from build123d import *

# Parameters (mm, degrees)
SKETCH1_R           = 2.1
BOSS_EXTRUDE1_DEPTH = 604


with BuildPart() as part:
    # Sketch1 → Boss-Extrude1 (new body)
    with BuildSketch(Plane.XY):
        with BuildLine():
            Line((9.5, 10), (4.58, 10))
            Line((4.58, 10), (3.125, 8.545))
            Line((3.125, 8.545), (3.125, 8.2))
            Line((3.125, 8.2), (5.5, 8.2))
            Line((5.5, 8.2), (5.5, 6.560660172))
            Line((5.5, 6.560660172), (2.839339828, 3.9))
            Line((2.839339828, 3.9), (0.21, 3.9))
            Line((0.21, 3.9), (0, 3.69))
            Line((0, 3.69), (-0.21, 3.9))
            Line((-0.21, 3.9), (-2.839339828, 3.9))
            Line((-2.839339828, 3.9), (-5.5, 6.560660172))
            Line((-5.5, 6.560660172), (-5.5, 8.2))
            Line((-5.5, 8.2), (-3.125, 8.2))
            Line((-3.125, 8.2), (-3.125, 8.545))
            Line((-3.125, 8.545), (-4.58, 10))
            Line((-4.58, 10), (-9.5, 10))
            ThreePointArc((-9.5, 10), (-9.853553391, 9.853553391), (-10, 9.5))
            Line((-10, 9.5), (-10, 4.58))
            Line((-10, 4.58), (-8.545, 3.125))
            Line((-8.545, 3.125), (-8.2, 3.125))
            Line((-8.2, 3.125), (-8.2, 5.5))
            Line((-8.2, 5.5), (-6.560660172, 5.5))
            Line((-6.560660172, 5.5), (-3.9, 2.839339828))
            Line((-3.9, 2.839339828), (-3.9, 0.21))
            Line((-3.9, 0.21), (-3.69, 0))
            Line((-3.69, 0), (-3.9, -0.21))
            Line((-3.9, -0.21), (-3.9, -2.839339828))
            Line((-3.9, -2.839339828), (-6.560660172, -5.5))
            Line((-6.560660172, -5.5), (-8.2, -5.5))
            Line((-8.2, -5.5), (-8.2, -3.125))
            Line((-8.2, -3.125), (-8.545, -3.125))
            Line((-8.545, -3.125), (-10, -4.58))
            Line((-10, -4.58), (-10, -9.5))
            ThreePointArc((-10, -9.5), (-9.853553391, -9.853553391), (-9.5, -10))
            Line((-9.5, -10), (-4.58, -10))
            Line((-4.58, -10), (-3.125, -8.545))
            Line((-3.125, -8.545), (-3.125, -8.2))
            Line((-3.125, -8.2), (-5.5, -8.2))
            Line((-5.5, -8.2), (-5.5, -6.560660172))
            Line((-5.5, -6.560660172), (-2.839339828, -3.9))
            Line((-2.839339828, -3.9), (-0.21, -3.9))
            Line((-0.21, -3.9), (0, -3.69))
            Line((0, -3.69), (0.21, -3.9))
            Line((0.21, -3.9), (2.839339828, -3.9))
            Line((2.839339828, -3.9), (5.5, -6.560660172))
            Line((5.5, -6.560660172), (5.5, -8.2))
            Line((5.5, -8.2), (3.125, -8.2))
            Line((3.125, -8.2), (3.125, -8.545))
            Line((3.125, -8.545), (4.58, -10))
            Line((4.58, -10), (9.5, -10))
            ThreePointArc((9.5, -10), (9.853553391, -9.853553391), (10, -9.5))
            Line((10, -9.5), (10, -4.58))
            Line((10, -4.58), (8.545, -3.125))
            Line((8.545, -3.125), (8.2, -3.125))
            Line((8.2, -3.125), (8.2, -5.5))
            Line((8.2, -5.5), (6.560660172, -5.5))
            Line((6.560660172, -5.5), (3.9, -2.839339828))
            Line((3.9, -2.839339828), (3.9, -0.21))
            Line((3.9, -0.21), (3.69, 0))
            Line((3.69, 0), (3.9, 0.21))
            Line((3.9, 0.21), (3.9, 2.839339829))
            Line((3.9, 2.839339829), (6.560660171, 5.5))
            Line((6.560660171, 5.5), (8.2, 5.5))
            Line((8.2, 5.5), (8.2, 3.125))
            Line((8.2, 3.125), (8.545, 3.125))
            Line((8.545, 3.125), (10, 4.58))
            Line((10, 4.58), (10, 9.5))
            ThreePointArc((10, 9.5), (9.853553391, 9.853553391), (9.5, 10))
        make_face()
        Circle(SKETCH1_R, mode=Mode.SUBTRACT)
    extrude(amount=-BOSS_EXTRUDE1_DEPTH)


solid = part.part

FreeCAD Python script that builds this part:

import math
import FreeCAD as App
import Part
import Sketcher

V = App.Vector

doc = App.newDocument("Part")
params = doc.addObject("Spreadsheet::Sheet", "Params")
for row, (alias, value) in enumerate([
    ("sketch1_diameter", "4.2 mm"),
    ("sketch1_radius", "0.5 mm"),
    ("sketch1_width", "4.92 mm"),
    ("pad1_length", "604 mm"),
], start=1):
    params.set(f"A{row}", alias)
    params.set(f"B{row}", "=" + value)
    params.setAlias(f"B{row}", alias)

body = doc.addObject("PartDesign::Body", "Body")

# Sketch on XY plane
sketch1 = body.newObject("Sketcher::SketchObject", "Sketch")
sketch1.AttachmentSupport = (doc.getObject("XY_Plane"), [""])
sketch1.MapMode = "FlatFace"
sketch1.addGeometry(Part.LineSegment(V(9.5, 10, 0), V(4.58, 10, 0)), False)
sketch1.addGeometry(Part.LineSegment(V(4.58, 10, 0), V(3.12, 8.54, 0)), False)
sketch1.addGeometry(Part.LineSegment(V(3.12, 8.54, 0), V(3.12, 8.2, 0)), False)
sketch1.addGeometry(Part.LineSegment(V(3.12, 8.2, 0), V(5.5, 8.2, 0)), False)
sketch1.addGeometry(Part.LineSegment(V(5.5, 8.2, 0), V(5.5, 6.56, 0)), False)
sketch1.addGeometry(Part.LineSegment(V(5.5, 6.56, 0), V(2.84, 3.9, 0)), False)
sketch1.addGeometry(Part.LineSegment(V(2.84, 3.9, 0), V(0.21, 3.9, 0)), False)
sketch1.addGeometry(Part.LineSegment(V(0.21, 3.9, 0), V(0, 3.69, 0)), False)
sketch1.addGeometry(Part.LineSegment(V(0, 3.69, 0), V(-0.21, 3.9, 0)), False)
sketch1.addGeometry(Part.LineSegment(V(-0.21, 3.9, 0), V(-2.84, 3.9, 0)), False)
sketch1.addGeometry(Part.LineSegment(V(-2.84, 3.9, 0), V(-5.5, 6.56, 0)), False)
sketch1.addGeometry(Part.LineSegment(V(-5.5, 6.56, 0), V(-5.5, 8.2, 0)), False)
sketch1.addGeometry(Part.LineSegment(V(-5.5, 8.2, 0), V(-3.12, 8.2, 0)), False)
sketch1.addGeometry(Part.LineSegment(V(-3.12, 8.2, 0), V(-3.12, 8.54, 0)), False)
sketch1.addGeometry(Part.LineSegment(V(-3.12, 8.54, 0), V(-4.58, 10, 0)), False)
sketch1.addGeometry(Part.LineSegment(V(-4.58, 10, 0), V(-9.5, 10, 0)), False)
sketch1.addGeometry(Part.ArcOfCircle(Part.Circle(V(-9.5, 9.5, 0), V(0, 0, 1), 0.5), math.radians(90), math.radians(180)), False)
sketch1.addGeometry(Part.LineSegment(V(-10, 9.5, 0), V(-10, 4.58, 0)), False)
sketch1.addGeometry(Part.LineSegment(V(-10, 4.58, 0), V(-8.54, 3.12, 0)), False)
sketch1.addGeometry(Part.LineSegment(V(-8.54, 3.12, 0), V(-8.2, 3.12, 0)), False)
sketch1.addGeometry(Part.LineSegment(V(-8.2, 3.12, 0), V(-8.2, 5.5, 0)), False)
sketch1.addGeometry(Part.LineSegment(V(-8.2, 5.5, 0), V(-6.56, 5.5, 0)), False)
sketch1.addGeometry(Part.LineSegment(V(-6.56, 5.5, 0), V(-3.9, 2.84, 0)), False)
sketch1.addGeometry(Part.LineSegment(V(-3.9, 2.84, 0), V(-3.9, 0.21, 0)), False)
sketch1.addGeometry(Part.LineSegment(V(-3.9, 0.21, 0), V(-3.69, 0, 0)), False)
sketch1.addGeometry(Part.LineSegment(V(-3.69, 0, 0), V(-3.9, -0.21, 0)), False)
sketch1.addGeometry(Part.LineSegment(V(-3.9, -0.21, 0), V(-3.9, -2.84, 0)), False)
sketch1.addGeometry(Part.LineSegment(V(-3.9, -2.84, 0), V(-6.56, -5.5, 0)), False)
sketch1.addGeometry(Part.LineSegment(V(-6.56, -5.5, 0), V(-8.2, -5.5, 0)), False)
sketch1.addGeometry(Part.LineSegment(V(-8.2, -5.5, 0), V(-8.2, -3.12, 0)), False)
sketch1.addGeometry(Part.LineSegment(V(-8.2, -3.12, 0), V(-8.54, -3.12, 0)), False)
sketch1.addGeometry(Part.LineSegment(V(-8.54, -3.12, 0), V(-10, -4.58, 0)), False)
sketch1.addGeometry(Part.LineSegment(V(-10, -4.58, 0), V(-10, -9.5, 0)), False)
sketch1.addGeometry(Part.ArcOfCircle(Part.Circle(V(-9.5, -9.5, 0), V(0, 0, 1), 0.5), math.radians(180), math.radians(270)), False)
sketch1.addGeometry(Part.LineSegment(V(-9.5, -10, 0), V(-4.58, -10, 0)), False)
sketch1.addGeometry(Part.LineSegment(V(-4.58, -10, 0), V(-3.12, -8.54, 0)), False)
sketch1.addGeometry(Part.LineSegment(V(-3.12, -8.54, 0), V(-3.12, -8.2, 0)), False)
sketch1.addGeometry(Part.LineSegment(V(-3.12, -8.2, 0), V(-5.5, -8.2, 0)), False)
sketch1.addGeometry(Part.LineSegment(V(-5.5, -8.2, 0), V(-5.5, -6.56, 0)), False)
sketch1.addGeometry(Part.LineSegment(V(-5.5, -6.56, 0), V(-2.84, -3.9, 0)), False)
sketch1.addGeometry(Part.LineSegment(V(-2.84, -3.9, 0), V(-0.21, -3.9, 0)), False)
sketch1.addGeometry(Part.LineSegment(V(-0.21, -3.9, 0), V(0, -3.69, 0)), False)
sketch1.addGeometry(Part.LineSegment(V(0, -3.69, 0), V(0.21, -3.9, 0)), False)
sketch1.addGeometry(Part.LineSegment(V(0.21, -3.9, 0), V(2.84, -3.9, 0)), False)
sketch1.addGeometry(Part.LineSegment(V(2.84, -3.9, 0), V(5.5, -6.56, 0)), False)
sketch1.addGeometry(Part.LineSegment(V(5.5, -6.56, 0), V(5.5, -8.2, 0)), False)
sketch1.addGeometry(Part.LineSegment(V(5.5, -8.2, 0), V(3.12, -8.2, 0)), False)
sketch1.addGeometry(Part.LineSegment(V(3.12, -8.2, 0), V(3.12, -8.54, 0)), False)
sketch1.addGeometry(Part.LineSegment(V(3.12, -8.54, 0), V(4.58, -10, 0)), False)
sketch1.addGeometry(Part.LineSegment(V(4.58, -10, 0), V(9.5, -10, 0)), False)
sketch1.addGeometry(Part.ArcOfCircle(Part.Circle(V(9.5, -9.5, 0), V(0, 0, 1), 0.5), math.radians(-90), math.radians(0)), False)
sketch1.addGeometry(Part.LineSegment(V(10, -9.5, 0), V(10, -4.58, 0)), False)
sketch1.addGeometry(Part.LineSegment(V(10, -4.58, 0), V(8.54, -3.12, 0)), False)
sketch1.addGeometry(Part.LineSegment(V(8.54, -3.12, 0), V(8.2, -3.12, 0)), False)
sketch1.addGeometry(Part.LineSegment(V(8.2, -3.12, 0), V(8.2, -5.5, 0)), False)
sketch1.addGeometry(Part.LineSegment(V(8.2, -5.5, 0), V(6.56, -5.5, 0)), False)
sketch1.addGeometry(Part.LineSegment(V(6.56, -5.5, 0), V(3.9, -2.84, 0)), False)
sketch1.addGeometry(Part.LineSegment(V(3.9, -2.84, 0), V(3.9, -0.21, 0)), False)
sketch1.addGeometry(Part.LineSegment(V(3.9, -0.21, 0), V(3.69, 0, 0)), False)
sketch1.addGeometry(Part.LineSegment(V(3.69, 0, 0), V(3.9, 0.21, 0)), False)
sketch1.addGeometry(Part.LineSegment(V(3.9, 0.21, 0), V(3.9, 2.84, 0)), False)
sketch1.addGeometry(Part.LineSegment(V(3.9, 2.84, 0), V(6.56, 5.5, 0)), False)
sketch1.addGeometry(Part.LineSegment(V(6.56, 5.5, 0), V(8.2, 5.5, 0)), False)
sketch1.addGeometry(Part.LineSegment(V(8.2, 5.5, 0), V(8.2, 3.12, 0)), False)
sketch1.addGeometry(Part.LineSegment(V(8.2, 3.12, 0), V(8.54, 3.12, 0)), False)
sketch1.addGeometry(Part.LineSegment(V(8.54, 3.12, 0), V(10, 4.58, 0)), False)
sketch1.addGeometry(Part.LineSegment(V(10, 4.58, 0), V(10, 9.5, 0)), False)
sketch1.addGeometry(Part.ArcOfCircle(Part.Circle(V(9.5, 9.5, 0), V(0, 0, 1), 0.5), math.radians(0), math.radians(90)), False)
sketch1.addGeometry(Part.Circle(V(0, 0, 0), V(0, 0, 1), 2.1), False)
sketch1.addConstraint(Sketcher.Constraint("Coincident", 0, 2, 1, 1))
sketch1.addConstraint(Sketcher.Constraint("Coincident", 1, 2, 2, 1))
sketch1.addConstraint(Sketcher.Constraint("Coincident", 2, 2, 3, 1))
sketch1.addConstraint(Sketcher.Constraint("Coincident", 3, 2, 4, 1))
sketch1.addConstraint(Sketcher.Constraint("Coincident", 4, 2, 5, 1))
sketch1.addConstraint(Sketcher.Constraint("Coincident", 5, 2, 6, 1))
sketch1.addConstraint(Sketcher.Constraint("Coincident", 6, 2, 7, 1))
sketch1.addConstraint(Sketcher.Constraint("Coincident", 7, 2, 8, 1))
sketch1.addConstraint(Sketcher.Constraint("Coincident", 8, 2, 9, 1))
sketch1.addConstraint(Sketcher.Constraint("Coincident", 9, 2, 10, 1))
sketch1.addConstraint(Sketcher.Constraint("Coincident", 10, 2, 11, 1))
sketch1.addConstraint(Sketcher.Constraint("Coincident", 11, 2, 12, 1))
sketch1.addConstraint(Sketcher.Constraint("Coincident", 12, 2, 13, 1))
sketch1.addConstraint(Sketcher.Constraint("Coincident", 13, 2, 14, 1))
sketch1.addConstraint(Sketcher.Constraint("Coincident", 14, 2, 15, 1))
sketch1.addConstraint(Sketcher.Constraint("Tangent", 15, 2, 16, 1))
sketch1.addConstraint(Sketcher.Constraint("Tangent", 16, 2, 17, 1))
sketch1.addConstraint(Sketcher.Constraint("Coincident", 17, 2, 18, 1))
sketch1.addConstraint(Sketcher.Constraint("Coincident", 18, 2, 19, 1))
sketch1.addConstraint(Sketcher.Constraint("Coincident", 19, 2, 20, 1))
sketch1.addConstraint(Sketcher.Constraint("Coincident", 20, 2, 21, 1))
sketch1.addConstraint(Sketcher.Constraint("Coincident", 21, 2, 22, 1))
sketch1.addConstraint(Sketcher.Constraint("Coincident", 22, 2, 23, 1))
sketch1.addConstraint(Sketcher.Constraint("Coincident", 23, 2, 24, 1))
sketch1.addConstraint(Sketcher.Constraint("Coincident", 24, 2, 25, 1))
sketch1.addConstraint(Sketcher.Constraint("Coincident", 25, 2, 26, 1))
sketch1.addConstraint(Sketcher.Constraint("Coincident", 26, 2, 27, 1))
sketch1.addConstraint(Sketcher.Constraint("Coincident", 27, 2, 28, 1))
sketch1.addConstraint(Sketcher.Constraint("Coincident", 28, 2, 29, 1))
sketch1.addConstraint(Sketcher.Constraint("Coincident", 29, 2, 30, 1))
sketch1.addConstraint(Sketcher.Constraint("Coincident", 30, 2, 31, 1))
sketch1.addConstraint(Sketcher.Constraint("Coincident", 31, 2, 32, 1))
sketch1.addConstraint(Sketcher.Constraint("Tangent", 32, 2, 33, 1))
sketch1.addConstraint(Sketcher.Constraint("Tangent", 33, 2, 34, 1))
sketch1.addConstraint(Sketcher.Constraint("Coincident", 34, 2, 35, 1))
sketch1.addConstraint(Sketcher.Constraint("Coincident", 35, 2, 36, 1))
sketch1.addConstraint(Sketcher.Constraint("Coincident", 36, 2, 37, 1))
sketch1.addConstraint(Sketcher.Constraint("Coincident", 37, 2, 38, 1))
sketch1.addConstraint(Sketcher.Constraint("Coincident", 38, 2, 39, 1))
sketch1.addConstraint(Sketcher.Constraint("Coincident", 39, 2, 40, 1))
sketch1.addConstraint(Sketcher.Constraint("Coincident", 40, 2, 41, 1))
sketch1.addConstraint(Sketcher.Constraint("Coincident", 41, 2, 42, 1))
sketch1.addConstraint(Sketcher.Constraint("Coincident", 42, 2, 43, 1))
sketch1.addConstraint(Sketcher.Constraint("Coincident", 43, 2, 44, 1))
sketch1.addConstraint(Sketcher.Constraint("Coincident", 44, 2, 45, 1))
sketch1.addConstraint(Sketcher.Constraint("Coincident", 45, 2, 46, 1))
sketch1.addConstraint(Sketcher.Constraint("Coincident", 46, 2, 47, 1))
sketch1.addConstraint(Sketcher.Constraint("Coincident", 47, 2, 48, 1))
sketch1.addConstraint(Sketcher.Constraint("Coincident", 48, 2, 49, 1))
sketch1.addConstraint(Sketcher.Constraint("Tangent", 49, 2, 50, 1))
sketch1.addConstraint(Sketcher.Constraint("Tangent", 50, 2, 51, 1))
sketch1.addConstraint(Sketcher.Constraint("Coincident", 51, 2, 52, 1))
sketch1.addConstraint(Sketcher.Constraint("Coincident", 52, 2, 53, 1))
sketch1.addConstraint(Sketcher.Constraint("Coincident", 53, 2, 54, 1))
sketch1.addConstraint(Sketcher.Constraint("Coincident", 54, 2, 55, 1))
sketch1.addConstraint(Sketcher.Constraint("Coincident", 55, 2, 56, 1))
sketch1.addConstraint(Sketcher.Constraint("Coincident", 56, 2, 57, 1))
sketch1.addConstraint(Sketcher.Constraint("Coincident", 57, 2, 58, 1))
sketch1.addConstraint(Sketcher.Constraint("Coincident", 58, 2, 59, 1))
sketch1.addConstraint(Sketcher.Constraint("Coincident", 59, 2, 60, 1))
sketch1.addConstraint(Sketcher.Constraint("Coincident", 60, 2, 61, 1))
sketch1.addConstraint(Sketcher.Constraint("Coincident", 61, 2, 62, 1))
sketch1.addConstraint(Sketcher.Constraint("Coincident", 62, 2, 63, 1))
sketch1.addConstraint(Sketcher.Constraint("Coincident", 63, 2, 64, 1))
sketch1.addConstraint(Sketcher.Constraint("Coincident", 64, 2, 65, 1))
sketch1.addConstraint(Sketcher.Constraint("Coincident", 65, 2, 66, 1))
sketch1.addConstraint(Sketcher.Constraint("Tangent", 66, 2, 67, 1))
sketch1.addConstraint(Sketcher.Constraint("Tangent", 67, 2, 0, 1))
sketch1.addConstraint(Sketcher.Constraint("Horizontal", 0))
sketch1.addConstraint(Sketcher.Constraint("Vertical", 2))
sketch1.addConstraint(Sketcher.Constraint("Horizontal", 3))
sketch1.addConstraint(Sketcher.Constraint("Vertical", 4))
sketch1.addConstraint(Sketcher.Constraint("Horizontal", 6))
sketch1.addConstraint(Sketcher.Constraint("Horizontal", 9))
sketch1.addConstraint(Sketcher.Constraint("Vertical", 11))
sketch1.addConstraint(Sketcher.Constraint("Horizontal", 12))
sketch1.addConstraint(Sketcher.Constraint("Vertical", 13))
sketch1.addConstraint(Sketcher.Constraint("Horizontal", 15))
sketch1.addConstraint(Sketcher.Constraint("Vertical", 17))
sketch1.addConstraint(Sketcher.Constraint("Horizontal", 19))
sketch1.addConstraint(Sketcher.Constraint("Vertical", 20))
sketch1.addConstraint(Sketcher.Constraint("Horizontal", 21))
sketch1.addConstraint(Sketcher.Constraint("Vertical", 23))
sketch1.addConstraint(Sketcher.Constraint("Vertical", 26))
sketch1.addConstraint(Sketcher.Constraint("Horizontal", 28))
sketch1.addConstraint(Sketcher.Constraint("Vertical", 29))
sketch1.addConstraint(Sketcher.Constraint("Horizontal", 30))
sketch1.addConstraint(Sketcher.Constraint("Vertical", 32))
sketch1.addConstraint(Sketcher.Constraint("Horizontal", 34))
sketch1.addConstraint(Sketcher.Constraint("Vertical", 36))
sketch1.addConstraint(Sketcher.Constraint("Horizontal", 37))
sketch1.addConstraint(Sketcher.Constraint("Vertical", 38))
sketch1.addConstraint(Sketcher.Constraint("Horizontal", 40))
sketch1.addConstraint(Sketcher.Constraint("Horizontal", 43))
sketch1.addConstraint(Sketcher.Constraint("Vertical", 45))
sketch1.addConstraint(Sketcher.Constraint("Horizontal", 46))
sketch1.addConstraint(Sketcher.Constraint("Vertical", 47))
sketch1.addConstraint(Sketcher.Constraint("Horizontal", 49))
sketch1.addConstraint(Sketcher.Constraint("Vertical", 51))
sketch1.addConstraint(Sketcher.Constraint("Horizontal", 53))
sketch1.addConstraint(Sketcher.Constraint("Vertical", 54))
sketch1.addConstraint(Sketcher.Constraint("Horizontal", 55))
sketch1.addConstraint(Sketcher.Constraint("Vertical", 57))
sketch1.addConstraint(Sketcher.Constraint("Vertical", 60))
sketch1.addConstraint(Sketcher.Constraint("Horizontal", 62))
sketch1.addConstraint(Sketcher.Constraint("Vertical", 63))
sketch1.addConstraint(Sketcher.Constraint("Horizontal", 64))
sketch1.addConstraint(Sketcher.Constraint("Vertical", 66))
sketch1.addConstraint(Sketcher.Constraint("Coincident", 68, 3, -1, 1))
sketch1.addConstraint(Sketcher.Constraint("Equal", 16, 33))
sketch1.addConstraint(Sketcher.Constraint("Equal", 33, 50))
sketch1.addConstraint(Sketcher.Constraint("Equal", 50, 67))
sketch1.addConstraint(Sketcher.Constraint("Symmetric", 16, 3, 50, 3, -1, 1))
sketch1.addConstraint(Sketcher.Constraint("Symmetric", 33, 3, 67, 3, -1, 1))
sketch1.addConstraint(Sketcher.Constraint("Symmetric", 1, 2, 35, 2, -1, 1))
sketch1.addConstraint(Sketcher.Constraint("Symmetric", 3, 2, 37, 2, -1, 1))
sketch1.addConstraint(Sketcher.Constraint("Symmetric", 5, 2, 39, 2, -1, 1))
sketch1.addConstraint(Sketcher.Constraint("Symmetric", 7, 2, 41, 2, -1, 1))
sketch1.addConstraint(Sketcher.Constraint("Symmetric", 8, 2, 42, 2, -1, 1))
sketch1.addConstraint(Sketcher.Constraint("Symmetric", 10, 2, 44, 2, -1, 1))
sketch1.addConstraint(Sketcher.Constraint("Symmetric", 12, 2, 46, 2, -1, 1))
sketch1.addConstraint(Sketcher.Constraint("Symmetric", 18, 2, 52, 2, -1, 1))
sketch1.addConstraint(Sketcher.Constraint("Symmetric", 20, 2, 54, 2, -1, 1))
sketch1.addConstraint(Sketcher.Constraint("Symmetric", 22, 2, 56, 2, -1, 1))
sketch1.addConstraint(Sketcher.Constraint("Symmetric", 24, 2, 58, 2, -1, 1))
sketch1.addConstraint(Sketcher.Constraint("Symmetric", 25, 2, 59, 2, -1, 1))
sketch1.addConstraint(Sketcher.Constraint("Symmetric", 27, 2, 61, 2, -1, 1))
sketch1.addConstraint(Sketcher.Constraint("Symmetric", 29, 2, 63, 2, -1, 1))
sketch1.addConstraint(Sketcher.Constraint("Symmetric", 33, 3, 50, 3, -2))
sketch1.addConstraint(Sketcher.Constraint("Symmetric", 6, 2, 8, 2, -2))
sketch1.addConstraint(Sketcher.Constraint("Symmetric", 4, 2, 10, 2, -2))
sketch1.addConstraint(Sketcher.Constraint("Symmetric", 2, 2, 12, 2, -2))
sketch1.addConstraint(Sketcher.Constraint("Symmetric", 30, 2, 52, 2, -2))
sketch1.addConstraint(Sketcher.Constraint("Symmetric", 28, 2, 54, 2, -2))
sketch1.addConstraint(Sketcher.Constraint("Symmetric", 26, 2, 56, 2, -2))
sketch1.addConstraint(Sketcher.Constraint("PointOnObject", 7, 2, -2))
sketch1.addConstraint(Sketcher.Constraint("PointOnObject", 24, 2, -1))
sketch1.addConstraint(Sketcher.Constraint("Parallel", 1, 5))
sketch1.addConstraint(Sketcher.Constraint("Parallel", 5, 7))
sketch1.addConstraint(Sketcher.Constraint("Perpendicular", 7, 8))
sketch1.addConstraint(Sketcher.Constraint("Parallel", 8, 10))
sketch1.addConstraint(Sketcher.Constraint("Parallel", 10, 14))
sketch1.addConstraint(Sketcher.Constraint("Parallel", 14, 18))
sketch1.addConstraint(Sketcher.Constraint("Parallel", 18, 22))
sketch1.addConstraint(Sketcher.Constraint("Parallel", 22, 24))
sketch1.addConstraint(Sketcher.Constraint("Perpendicular", 24, 25))
sketch1.addConstraint(Sketcher.Constraint("Parallel", 25, 27))
sketch1.addConstraint(Sketcher.Constraint("Parallel", 27, 31))
sketch1.addConstraint(Sketcher.Constraint("Parallel", 31, 35))
sketch1.addConstraint(Sketcher.Constraint("Parallel", 35, 39))
sketch1.addConstraint(Sketcher.Constraint("Parallel", 39, 41))
sketch1.addConstraint(Sketcher.Constraint("Parallel", 42, 44))
sketch1.addConstraint(Sketcher.Constraint("Parallel", 44, 48))
sketch1.addConstraint(Sketcher.Constraint("Parallel", 48, 52))
sketch1.addConstraint(Sketcher.Constraint("Parallel", 52, 56))
sketch1.addConstraint(Sketcher.Constraint("Parallel", 56, 58))
sketch1.addConstraint(Sketcher.Constraint("Parallel", 59, 61))
sketch1.addConstraint(Sketcher.Constraint("Parallel", 61, 65))
sketch1.addConstraint(Sketcher.Constraint("Horizontal", 1, 2, 13, 2))
sketch1.addConstraint(Sketcher.Constraint("Horizontal", 35, 2, 47, 2))
sketch1.addConstraint(Sketcher.Constraint("Horizontal", 17, 2, 65, 2))
sketch1.addConstraint(Sketcher.Constraint("Equal", 64, 2))
sketch1.addConstraint(Sketcher.Constraint("Equal", 62, 4))
sketch1.addConstraint(Sketcher.Constraint("Equal", 49, 17))
sketch1.addConstraint(Sketcher.Constraint("Equal", 46, 20))
sketch1.addConstraint(Sketcher.Constraint("Equal", 43, 23))
sketch1.addConstraint(Sketcher.Constraint("Equal", 14, 18))
sketch1.addConstraint(Sketcher.Constraint("Equal", 10, 22))
sketch1.addConstraint(Sketcher.Constraint("Equal", 8, 24))
sketch1.addConstraint(Sketcher.Constraint("Diameter", 68, 4.2))
sketch1.addConstraint(Sketcher.Constraint("Radius", 16, 0.5))
sketch1.addConstraint(Sketcher.Constraint("DistanceY", -1, 1, 0, 2, 10.0))
sketch1.addConstraint(Sketcher.Constraint("DistanceX", 0, 2, 0, 1, 4.92))
sketch1.addConstraint(Sketcher.Constraint("DistanceY", -1, 1, 2, 2, 8.2))
sketch1.addConstraint(Sketcher.Constraint("DistanceX", -1, 1, 3, 2, 5.5))
sketch1.addConstraint(Sketcher.Constraint("DistanceY", -1, 1, 5, 2, 3.9))
sketch1.addConstraint(Sketcher.Constraint("DistanceX", 3, 1, 3, 2, 2.375))
sketch1.addConstraint(Sketcher.Constraint("DistanceX", -1, 1, 6, 2, 0.21))
sketch1.addConstraint(Sketcher.Constraint("DistanceX", 6, 2, 6, 1, 2.62934))
sketch1.setExpression("Constraints[169]", "Params.sketch1_diameter")
sketch1.setExpression("Constraints[170]", "Params.sketch1_radius")
sketch1.setExpression("Constraints[172]", "Params.sketch1_width")
pad1 = body.newObject("PartDesign::Pad", "Pad")
pad1.Profile = sketch1
pad1.setExpression("Length", "Params.pad1_length")
pad1.Reversed = True

doc.recompute()
